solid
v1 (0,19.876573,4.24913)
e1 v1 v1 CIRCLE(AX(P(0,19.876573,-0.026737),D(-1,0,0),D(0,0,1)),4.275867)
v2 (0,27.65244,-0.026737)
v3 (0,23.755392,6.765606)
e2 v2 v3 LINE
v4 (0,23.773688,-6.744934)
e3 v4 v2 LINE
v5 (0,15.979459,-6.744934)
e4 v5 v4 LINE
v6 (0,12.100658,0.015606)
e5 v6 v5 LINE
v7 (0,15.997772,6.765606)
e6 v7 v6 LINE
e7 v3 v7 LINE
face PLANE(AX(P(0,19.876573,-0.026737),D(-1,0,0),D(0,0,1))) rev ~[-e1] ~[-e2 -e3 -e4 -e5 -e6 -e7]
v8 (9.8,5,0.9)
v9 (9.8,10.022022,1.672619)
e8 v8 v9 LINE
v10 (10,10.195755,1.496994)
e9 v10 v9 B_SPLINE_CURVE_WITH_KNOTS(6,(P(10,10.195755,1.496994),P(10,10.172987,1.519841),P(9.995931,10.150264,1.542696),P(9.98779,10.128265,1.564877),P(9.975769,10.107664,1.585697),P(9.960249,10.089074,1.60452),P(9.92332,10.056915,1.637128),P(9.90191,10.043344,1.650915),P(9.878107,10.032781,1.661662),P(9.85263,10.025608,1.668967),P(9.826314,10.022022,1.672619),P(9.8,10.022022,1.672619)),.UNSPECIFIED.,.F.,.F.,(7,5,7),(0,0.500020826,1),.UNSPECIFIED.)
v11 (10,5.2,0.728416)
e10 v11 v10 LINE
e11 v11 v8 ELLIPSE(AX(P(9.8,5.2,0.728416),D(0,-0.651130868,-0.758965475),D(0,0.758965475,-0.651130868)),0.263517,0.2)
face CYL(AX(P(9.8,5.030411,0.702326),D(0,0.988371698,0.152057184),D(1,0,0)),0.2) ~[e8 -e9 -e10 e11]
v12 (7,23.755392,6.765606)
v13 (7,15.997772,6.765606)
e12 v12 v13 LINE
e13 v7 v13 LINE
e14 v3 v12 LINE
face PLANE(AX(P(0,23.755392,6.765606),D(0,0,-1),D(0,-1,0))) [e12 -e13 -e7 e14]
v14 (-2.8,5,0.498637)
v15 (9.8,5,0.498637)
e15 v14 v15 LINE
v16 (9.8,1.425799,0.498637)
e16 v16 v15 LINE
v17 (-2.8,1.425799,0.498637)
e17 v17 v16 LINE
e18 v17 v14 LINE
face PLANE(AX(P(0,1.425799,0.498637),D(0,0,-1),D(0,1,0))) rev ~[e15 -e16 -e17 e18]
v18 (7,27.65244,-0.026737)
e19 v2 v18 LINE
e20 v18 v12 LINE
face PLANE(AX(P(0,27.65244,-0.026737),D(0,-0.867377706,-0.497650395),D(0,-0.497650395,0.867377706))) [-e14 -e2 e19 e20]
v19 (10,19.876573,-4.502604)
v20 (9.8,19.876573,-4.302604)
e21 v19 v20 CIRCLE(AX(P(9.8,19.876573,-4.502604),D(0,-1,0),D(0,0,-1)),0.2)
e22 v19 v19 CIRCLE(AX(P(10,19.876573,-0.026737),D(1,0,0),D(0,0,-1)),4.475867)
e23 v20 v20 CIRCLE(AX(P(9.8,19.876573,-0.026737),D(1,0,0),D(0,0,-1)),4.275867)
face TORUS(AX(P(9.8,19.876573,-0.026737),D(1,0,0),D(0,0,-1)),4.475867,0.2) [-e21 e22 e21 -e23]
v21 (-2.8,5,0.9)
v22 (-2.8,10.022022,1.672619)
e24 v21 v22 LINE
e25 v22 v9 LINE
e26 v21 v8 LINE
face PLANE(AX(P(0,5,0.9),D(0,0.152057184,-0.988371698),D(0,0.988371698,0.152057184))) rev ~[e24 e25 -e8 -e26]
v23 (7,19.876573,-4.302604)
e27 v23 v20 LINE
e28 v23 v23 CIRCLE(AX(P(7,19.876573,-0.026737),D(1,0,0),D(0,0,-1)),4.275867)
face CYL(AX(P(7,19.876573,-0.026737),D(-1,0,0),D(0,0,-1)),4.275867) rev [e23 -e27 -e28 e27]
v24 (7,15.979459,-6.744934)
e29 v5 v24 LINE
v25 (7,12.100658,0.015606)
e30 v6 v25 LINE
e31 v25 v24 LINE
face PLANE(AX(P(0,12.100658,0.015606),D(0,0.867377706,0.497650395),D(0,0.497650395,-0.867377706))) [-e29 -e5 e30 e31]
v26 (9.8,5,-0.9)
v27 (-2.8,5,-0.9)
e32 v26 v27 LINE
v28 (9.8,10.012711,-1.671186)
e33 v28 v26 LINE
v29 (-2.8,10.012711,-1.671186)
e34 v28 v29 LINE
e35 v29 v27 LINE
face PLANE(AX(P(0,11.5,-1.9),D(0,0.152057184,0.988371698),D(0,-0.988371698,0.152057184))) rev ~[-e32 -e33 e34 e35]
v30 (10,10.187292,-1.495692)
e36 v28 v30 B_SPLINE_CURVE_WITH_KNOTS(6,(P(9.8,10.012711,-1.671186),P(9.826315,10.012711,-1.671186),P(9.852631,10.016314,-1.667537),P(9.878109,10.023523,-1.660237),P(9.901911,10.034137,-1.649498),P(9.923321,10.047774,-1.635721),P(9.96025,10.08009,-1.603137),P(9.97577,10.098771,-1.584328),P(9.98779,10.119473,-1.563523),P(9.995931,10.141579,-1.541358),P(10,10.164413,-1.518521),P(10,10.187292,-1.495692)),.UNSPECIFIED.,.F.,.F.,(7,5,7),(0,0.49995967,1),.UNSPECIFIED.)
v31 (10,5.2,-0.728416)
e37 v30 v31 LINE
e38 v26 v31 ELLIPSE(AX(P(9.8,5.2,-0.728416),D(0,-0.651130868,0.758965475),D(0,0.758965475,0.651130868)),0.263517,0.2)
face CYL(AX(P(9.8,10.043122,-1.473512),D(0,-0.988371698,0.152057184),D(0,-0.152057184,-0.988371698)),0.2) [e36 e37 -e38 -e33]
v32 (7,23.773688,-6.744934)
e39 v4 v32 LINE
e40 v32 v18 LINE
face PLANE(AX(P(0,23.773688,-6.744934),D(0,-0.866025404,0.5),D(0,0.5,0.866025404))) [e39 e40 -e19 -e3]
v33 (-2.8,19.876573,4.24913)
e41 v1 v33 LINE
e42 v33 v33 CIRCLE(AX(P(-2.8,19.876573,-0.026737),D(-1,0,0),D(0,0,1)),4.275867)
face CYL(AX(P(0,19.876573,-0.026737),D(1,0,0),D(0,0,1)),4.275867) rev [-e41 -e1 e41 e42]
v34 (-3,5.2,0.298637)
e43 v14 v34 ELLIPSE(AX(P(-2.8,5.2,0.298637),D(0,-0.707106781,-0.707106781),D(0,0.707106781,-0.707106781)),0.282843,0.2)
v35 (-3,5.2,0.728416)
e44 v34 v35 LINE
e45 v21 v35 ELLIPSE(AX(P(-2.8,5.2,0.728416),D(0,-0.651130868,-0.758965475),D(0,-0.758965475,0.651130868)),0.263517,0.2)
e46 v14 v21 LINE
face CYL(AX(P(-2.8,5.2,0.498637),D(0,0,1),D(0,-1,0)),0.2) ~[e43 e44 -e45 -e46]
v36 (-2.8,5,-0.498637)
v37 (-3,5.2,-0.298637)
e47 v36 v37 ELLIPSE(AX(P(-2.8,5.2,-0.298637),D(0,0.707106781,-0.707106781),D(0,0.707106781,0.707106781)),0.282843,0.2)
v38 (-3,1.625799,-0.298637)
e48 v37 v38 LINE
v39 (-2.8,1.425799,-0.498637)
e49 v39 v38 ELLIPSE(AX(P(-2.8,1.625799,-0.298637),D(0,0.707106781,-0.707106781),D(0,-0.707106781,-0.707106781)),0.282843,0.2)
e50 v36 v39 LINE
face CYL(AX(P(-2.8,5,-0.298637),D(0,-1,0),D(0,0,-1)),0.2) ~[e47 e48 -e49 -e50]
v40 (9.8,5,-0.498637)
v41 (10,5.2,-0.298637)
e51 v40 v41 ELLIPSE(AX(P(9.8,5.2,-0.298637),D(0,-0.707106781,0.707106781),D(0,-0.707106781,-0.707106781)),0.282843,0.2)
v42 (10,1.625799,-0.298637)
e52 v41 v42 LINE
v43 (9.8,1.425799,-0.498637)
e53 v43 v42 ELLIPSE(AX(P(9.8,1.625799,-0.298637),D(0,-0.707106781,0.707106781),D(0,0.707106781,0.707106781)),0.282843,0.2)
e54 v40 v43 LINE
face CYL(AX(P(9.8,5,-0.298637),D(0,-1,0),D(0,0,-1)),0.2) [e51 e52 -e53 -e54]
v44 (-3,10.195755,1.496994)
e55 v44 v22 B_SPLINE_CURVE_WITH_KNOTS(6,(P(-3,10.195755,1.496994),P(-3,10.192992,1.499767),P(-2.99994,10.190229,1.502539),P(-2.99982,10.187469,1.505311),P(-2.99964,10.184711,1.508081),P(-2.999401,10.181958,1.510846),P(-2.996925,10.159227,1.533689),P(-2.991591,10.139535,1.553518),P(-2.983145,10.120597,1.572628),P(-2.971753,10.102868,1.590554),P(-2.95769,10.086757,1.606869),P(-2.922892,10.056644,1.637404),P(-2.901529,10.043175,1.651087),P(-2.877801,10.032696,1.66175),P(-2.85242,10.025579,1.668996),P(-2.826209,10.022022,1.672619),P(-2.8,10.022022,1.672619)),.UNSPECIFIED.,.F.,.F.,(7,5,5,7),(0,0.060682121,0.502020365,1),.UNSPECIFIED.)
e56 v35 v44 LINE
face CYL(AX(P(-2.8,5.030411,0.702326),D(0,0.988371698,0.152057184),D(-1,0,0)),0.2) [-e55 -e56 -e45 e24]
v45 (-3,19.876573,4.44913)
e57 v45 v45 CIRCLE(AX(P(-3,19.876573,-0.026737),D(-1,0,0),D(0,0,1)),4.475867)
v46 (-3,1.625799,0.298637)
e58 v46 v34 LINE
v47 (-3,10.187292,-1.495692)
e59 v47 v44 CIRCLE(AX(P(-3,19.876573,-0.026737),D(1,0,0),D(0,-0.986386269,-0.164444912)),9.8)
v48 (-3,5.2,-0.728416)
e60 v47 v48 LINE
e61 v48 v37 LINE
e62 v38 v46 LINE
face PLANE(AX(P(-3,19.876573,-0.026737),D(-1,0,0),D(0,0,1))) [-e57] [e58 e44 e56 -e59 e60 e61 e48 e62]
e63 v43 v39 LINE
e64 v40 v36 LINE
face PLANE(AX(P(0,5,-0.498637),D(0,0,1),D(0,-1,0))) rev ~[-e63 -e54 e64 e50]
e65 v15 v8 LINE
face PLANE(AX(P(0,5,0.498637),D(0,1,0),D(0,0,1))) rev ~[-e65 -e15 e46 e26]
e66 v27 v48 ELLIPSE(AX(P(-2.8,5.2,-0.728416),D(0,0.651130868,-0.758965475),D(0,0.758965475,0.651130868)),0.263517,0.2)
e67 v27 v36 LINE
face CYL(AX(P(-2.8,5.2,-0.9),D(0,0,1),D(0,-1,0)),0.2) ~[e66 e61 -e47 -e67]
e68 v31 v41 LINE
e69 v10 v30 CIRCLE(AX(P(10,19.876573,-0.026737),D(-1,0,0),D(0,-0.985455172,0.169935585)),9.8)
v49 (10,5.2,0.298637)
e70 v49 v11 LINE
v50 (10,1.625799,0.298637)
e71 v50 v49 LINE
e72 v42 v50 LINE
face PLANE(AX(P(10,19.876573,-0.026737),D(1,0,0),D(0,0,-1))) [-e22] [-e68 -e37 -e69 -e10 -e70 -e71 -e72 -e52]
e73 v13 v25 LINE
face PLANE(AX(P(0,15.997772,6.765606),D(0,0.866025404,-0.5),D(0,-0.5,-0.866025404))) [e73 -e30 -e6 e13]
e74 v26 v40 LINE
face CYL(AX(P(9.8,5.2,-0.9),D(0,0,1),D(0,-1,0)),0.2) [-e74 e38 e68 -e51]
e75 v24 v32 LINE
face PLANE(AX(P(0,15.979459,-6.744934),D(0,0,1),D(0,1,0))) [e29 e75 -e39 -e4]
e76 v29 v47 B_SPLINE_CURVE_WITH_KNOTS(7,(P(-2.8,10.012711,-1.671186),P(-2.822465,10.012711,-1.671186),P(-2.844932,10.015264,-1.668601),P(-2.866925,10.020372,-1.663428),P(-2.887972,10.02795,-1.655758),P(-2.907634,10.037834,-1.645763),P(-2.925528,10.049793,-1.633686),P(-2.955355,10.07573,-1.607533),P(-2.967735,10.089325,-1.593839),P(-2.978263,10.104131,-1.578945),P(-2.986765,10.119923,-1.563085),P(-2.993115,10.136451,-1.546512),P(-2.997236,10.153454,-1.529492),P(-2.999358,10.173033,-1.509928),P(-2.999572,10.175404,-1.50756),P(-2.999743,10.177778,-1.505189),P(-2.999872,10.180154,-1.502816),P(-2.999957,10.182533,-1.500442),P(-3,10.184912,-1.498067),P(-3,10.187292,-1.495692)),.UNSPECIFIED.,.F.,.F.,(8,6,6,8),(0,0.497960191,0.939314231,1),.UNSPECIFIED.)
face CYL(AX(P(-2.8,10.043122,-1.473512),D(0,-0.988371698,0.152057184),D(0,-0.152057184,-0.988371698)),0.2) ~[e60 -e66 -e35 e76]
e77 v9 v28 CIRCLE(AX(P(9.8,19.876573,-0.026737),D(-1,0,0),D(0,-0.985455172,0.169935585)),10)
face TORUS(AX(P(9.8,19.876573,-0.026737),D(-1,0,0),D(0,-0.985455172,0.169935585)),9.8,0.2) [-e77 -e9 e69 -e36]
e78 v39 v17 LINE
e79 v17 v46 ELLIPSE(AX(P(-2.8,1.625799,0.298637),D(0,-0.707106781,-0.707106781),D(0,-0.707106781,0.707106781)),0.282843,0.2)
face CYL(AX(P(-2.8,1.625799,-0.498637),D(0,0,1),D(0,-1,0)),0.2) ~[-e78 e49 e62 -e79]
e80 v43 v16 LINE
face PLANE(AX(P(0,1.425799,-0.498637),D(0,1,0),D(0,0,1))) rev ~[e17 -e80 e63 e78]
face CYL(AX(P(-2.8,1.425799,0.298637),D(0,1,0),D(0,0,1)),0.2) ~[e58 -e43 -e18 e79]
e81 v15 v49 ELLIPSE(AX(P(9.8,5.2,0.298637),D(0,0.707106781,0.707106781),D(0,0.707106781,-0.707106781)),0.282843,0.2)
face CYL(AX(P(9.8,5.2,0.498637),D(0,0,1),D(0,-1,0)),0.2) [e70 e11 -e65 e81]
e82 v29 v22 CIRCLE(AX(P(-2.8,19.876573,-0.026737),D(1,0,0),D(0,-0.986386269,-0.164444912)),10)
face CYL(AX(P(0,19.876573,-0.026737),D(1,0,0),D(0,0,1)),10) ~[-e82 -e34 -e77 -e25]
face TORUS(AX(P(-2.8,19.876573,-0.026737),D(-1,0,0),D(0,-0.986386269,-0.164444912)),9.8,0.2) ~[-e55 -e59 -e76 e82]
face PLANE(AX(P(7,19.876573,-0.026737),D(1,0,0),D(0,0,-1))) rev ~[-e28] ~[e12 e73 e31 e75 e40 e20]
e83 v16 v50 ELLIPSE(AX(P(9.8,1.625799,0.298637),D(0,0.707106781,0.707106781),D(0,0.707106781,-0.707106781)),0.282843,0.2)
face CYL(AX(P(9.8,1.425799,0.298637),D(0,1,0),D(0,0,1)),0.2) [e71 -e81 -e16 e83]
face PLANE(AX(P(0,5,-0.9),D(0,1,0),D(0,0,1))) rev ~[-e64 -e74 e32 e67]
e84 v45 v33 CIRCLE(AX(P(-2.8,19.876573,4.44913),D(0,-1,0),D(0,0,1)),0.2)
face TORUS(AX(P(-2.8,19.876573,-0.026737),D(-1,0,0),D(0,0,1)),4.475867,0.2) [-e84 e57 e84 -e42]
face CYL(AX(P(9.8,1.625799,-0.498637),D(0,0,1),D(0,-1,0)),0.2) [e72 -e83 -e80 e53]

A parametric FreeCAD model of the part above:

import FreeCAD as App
import Part
import Sketcher

V = App.Vector
Q = App.Units.Quantity


def edges_at(feature, points):
    """Names of the edges that pass closest to the given points."""
    edges = feature.Shape.Edges
    near = lambda p: min(range(len(edges)), key=lambda i: edges[i].distToShape(Part.Vertex(*p))[0])
    return sorted({f"Edge{near(p) + 1}" for p in points})

doc = App.newDocument("Part")
body = doc.addObject("PartDesign::Body", "Body")

sketch1 = body.newObject("Sketcher::SketchObject", "Sketch")
sketch1.AttachmentSupport = (doc.getObject("YZ_Plane"), [""])
sketch1.MapMode = "FlatFace"
sketch1.addGeometry([
    Part.LineSegment(V(11.5, 1.9, 0), V(5, 0.9, 0)),
    Part.LineSegment(V(5, 0.9, 0), V(5, 0.5, 0)),
    Part.LineSegment(V(5, 0.5, 0), V(1.43, 0.5, 0)),
    Part.LineSegment(V(1.43, 0.5, 0), V(1.43, -0.5, 0)),
    Part.LineSegment(V(1.43, -0.5, 0), V(5, -0.5, 0)),
    Part.LineSegment(V(5, -0.5, 0), V(5, -0.9, 0)),
    Part.LineSegment(V(5, -0.9, 0), V(11.5, -1.9, 0)),
    Part.LineSegment(V(11.5, -1.9, 0), V(11.5, 1.9, 0)),
], False)
sketch1.addConstraint([
    Sketcher.Constraint("Coincident", 0, 2, 1, 1),
    Sketcher.Constraint("Coincident", 1, 2, 2, 1),
    Sketcher.Constraint("Coincident", 2, 2, 3, 1),
    Sketcher.Constraint("Coincident", 3, 2, 4, 1),
    Sketcher.Constraint("Coincident", 4, 2, 5, 1),
    Sketcher.Constraint("Coincident", 5, 2, 6, 1),
    Sketcher.Constraint("Coincident", 6, 2, 7, 1),
    Sketcher.Constraint("Coincident", 7, 2, 0, 1),
    Sketcher.Constraint("Vertical", 1),
    Sketcher.Constraint("Horizontal", 2),
    Sketcher.Constraint("Vertical", 3),
    Sketcher.Constraint("Horizontal", 4),
    Sketcher.Constraint("Vertical", 5),
    Sketcher.Constraint("Vertical", 7),
    Sketcher.Constraint("Symmetric", 1, 2, 4, 2, -1),
    Sketcher.Constraint("Equal", 1, 5),
    Sketcher.Constraint("Equal", 0, 6),
    Sketcher.Constraint("DistanceY", 7, 1, 7, 2, 3.8),
    Sketcher.Constraint("DistanceX", -1, 1, 0, 2, 5.0),
    Sketcher.Constraint("DistanceY", 6, 2, 5, 2, 1.0),
    Sketcher.Constraint("DistanceX", -1, 1, 6, 2, 11.5),
    Sketcher.Constraint("DistanceX", 2, 2, 2, 1, 3.574201),
    Sketcher.Constraint("DistanceY", 1, 2, 1, 1, 0.401363),
])
pad1 = body.newObject("PartDesign::Pad", "Pad")
pad1.Profile = sketch1
pad1.Type = "TwoLengths"
pad1.Length = 10
pad1.Length2 = 3

sketch2 = body.newObject("Sketcher::SketchObject", "Sketch001")
sketch2.AttachmentSupport = (doc.getObject("YZ_Plane"), [""])
sketch2.MapMode = "FlatFace"
sketch2.AttachmentOffset = App.Placement(V(0, 0, 7), App.Rotation())
sketch2.addGeometry([
    Part.Circle(V(19.9, 0, 0), V(0, 0, 1), 10),
    Part.Circle(V(19.9, 0, 0), V(0, 0, 1), 4.3),
], False)
sketch2.addConstraint([
    Sketcher.Constraint("Coincident", 1, 3, 0, 3),
    Sketcher.Constraint("Diameter", 0, 20.0),
    Sketcher.Constraint("Diameter", 1, 8.551734),
    Sketcher.Constraint("DistanceX", -1, 1, 0, 3, 19.876573),
    Sketcher.Constraint("DistanceY", 0, 3, -1, 1, 0.026737),
])
pad2 = body.newObject("PartDesign::Pad", "Pad001")
pad2.Profile = sketch2
pad2.Length = 3

sketch3 = body.newObject("Sketcher::SketchObject", "Sketch002")
sketch3.AttachmentSupport = (doc.getObject("YZ_Plane"), [""])
sketch3.MapMode = "FlatFace"
sketch3.addGeometry([
    Part.Circle(V(19.9, 0, 0), V(0, 0, 1), 10),
    Part.Circle(V(19.9, 0, 0), V(0, 0, 1), 4.3),
], False)
sketch3.addConstraint([
    Sketcher.Constraint("Coincident", 1, 3, 0, 3),
    Sketcher.Constraint("Diameter", 0, 20.0),
    Sketcher.Constraint("Diameter", 1, 8.551734),
    Sketcher.Constraint("DistanceX", -1, 1, 0, 3, 19.876573),
    Sketcher.Constraint("DistanceY", 0, 3, -1, 1, 0.026737),
])
pad3 = body.newObject("PartDesign::Pad", "Pad002")
pad3.Profile = sketch3
pad3.Length = 3
pad3.Reversed = True
doc.recompute()

fillet = body.newObject("PartDesign::Fillet", "Fillet")
fillet.Base = (pad3, edges_at(pad3, [
    (-3, 5, -0.699),
    (10, 7.511, 1.286),
    (-3, 3.213, -0.499),
    (10, 3.213, 0.499),
    (10, 1.426, 0),
    (10, 3.213, -0.499),
    (10, 5, 0.699),
    (10, 5, -0.699),
    (-3, 1.426, 0),
    (-3, 3.213, 0.499),
    (-3, 5, 0.699),
    (10, 7.506, -1.286),
    (10, 29.877, -0.055),
    (10, 19.877, 4.249),
    (-3, 7.511, 1.286),
    (-3, 7.506, -1.286),
    (-3, 29.877, -0.055),
    (-3, 19.877, -4.303),
]))
fillet.Radius = 0.2
body2 = doc.addObject("PartDesign::Body", "Body001")

sketch4 = body2.newObject("Sketcher::SketchObject", "Sketch003")
sketch4.AttachmentSupport = (doc.getObject("YZ_Plane001"), [""])
sketch4.MapMode = "FlatFace"
sketch4.addGeometry([
    Part.Circle(V(20, 0, 0), V(0, 0, 1), 10),
    Part.LineSegment(V(16, 7, 0), V(24, 7, 0)),
    Part.LineSegment(V(24, 7, 0), V(28, 0, 0)),
    Part.LineSegment(V(28, 0, 0), V(24, -7, 0)),
    Part.LineSegment(V(24, -7, 0), V(16, -7, 0)),
    Part.LineSegment(V(16, -7, 0), V(12, 0, 0)),
    Part.LineSegment(V(12, 0, 0), V(16, 7, 0)),
], False)
sketch4.addConstraint([
    Sketcher.Constraint("Coincident", 1, 2, 2, 1),
    Sketcher.Constraint("Coincident", 2, 2, 3, 1),
    Sketcher.Constraint("Coincident", 3, 2, 4, 1),
    Sketcher.Constraint("Coincident", 4, 2, 5, 1),
    Sketcher.Constraint("Coincident", 5, 2, 6, 1),
    Sketcher.Constraint("Coincident", 6, 2, 1, 1),
    Sketcher.Constraint("Horizontal", 1),
    Sketcher.Constraint("Horizontal", 4),
    Sketcher.Constraint("Parallel", 2, 5),
    Sketcher.Constraint("Parallel", 3, 6),
    Sketcher.Constraint("Horizontal", 0, 3, 2, 2),
    Sketcher.Constraint("Equal", 5, 6),
    Sketcher.Constraint("Diameter", 0, 20.0),
    Sketcher.Constraint("Angle", 3, Q("-120 deg")),
    Sketcher.Constraint("DistanceY", 5, 2, 1, 2, 6.75),
    Sketcher.Constraint("DistanceX", 1, 1, 1, 2, 7.75762),
    Sketcher.Constraint("DistanceX", 4, 2, 4, 1, 7.794229),
    Sketcher.Constraint("DistanceX", 5, 2, 4, 2, 3.878801),
    Sketcher.Constraint("DistanceX", 6, 2, 0, 3, 3.878801),
    Sketcher.Constraint("DistanceX", -1, 1, 2, 2, 27.65244),
    Sketcher.Constraint("DistanceY", 0, 3, -1, 1, 0.026737),
])
pad4 = body2.newObject("PartDesign::Pad", "Pad003")
pad4.Profile = sketch4
pad4.Length = 7
doc.recompute()

boolean = body2.newObject("PartDesign::Boolean", "Boolean")
boolean.Type = "Fuse"
boolean.addObjects([body])

doc.recompute()
